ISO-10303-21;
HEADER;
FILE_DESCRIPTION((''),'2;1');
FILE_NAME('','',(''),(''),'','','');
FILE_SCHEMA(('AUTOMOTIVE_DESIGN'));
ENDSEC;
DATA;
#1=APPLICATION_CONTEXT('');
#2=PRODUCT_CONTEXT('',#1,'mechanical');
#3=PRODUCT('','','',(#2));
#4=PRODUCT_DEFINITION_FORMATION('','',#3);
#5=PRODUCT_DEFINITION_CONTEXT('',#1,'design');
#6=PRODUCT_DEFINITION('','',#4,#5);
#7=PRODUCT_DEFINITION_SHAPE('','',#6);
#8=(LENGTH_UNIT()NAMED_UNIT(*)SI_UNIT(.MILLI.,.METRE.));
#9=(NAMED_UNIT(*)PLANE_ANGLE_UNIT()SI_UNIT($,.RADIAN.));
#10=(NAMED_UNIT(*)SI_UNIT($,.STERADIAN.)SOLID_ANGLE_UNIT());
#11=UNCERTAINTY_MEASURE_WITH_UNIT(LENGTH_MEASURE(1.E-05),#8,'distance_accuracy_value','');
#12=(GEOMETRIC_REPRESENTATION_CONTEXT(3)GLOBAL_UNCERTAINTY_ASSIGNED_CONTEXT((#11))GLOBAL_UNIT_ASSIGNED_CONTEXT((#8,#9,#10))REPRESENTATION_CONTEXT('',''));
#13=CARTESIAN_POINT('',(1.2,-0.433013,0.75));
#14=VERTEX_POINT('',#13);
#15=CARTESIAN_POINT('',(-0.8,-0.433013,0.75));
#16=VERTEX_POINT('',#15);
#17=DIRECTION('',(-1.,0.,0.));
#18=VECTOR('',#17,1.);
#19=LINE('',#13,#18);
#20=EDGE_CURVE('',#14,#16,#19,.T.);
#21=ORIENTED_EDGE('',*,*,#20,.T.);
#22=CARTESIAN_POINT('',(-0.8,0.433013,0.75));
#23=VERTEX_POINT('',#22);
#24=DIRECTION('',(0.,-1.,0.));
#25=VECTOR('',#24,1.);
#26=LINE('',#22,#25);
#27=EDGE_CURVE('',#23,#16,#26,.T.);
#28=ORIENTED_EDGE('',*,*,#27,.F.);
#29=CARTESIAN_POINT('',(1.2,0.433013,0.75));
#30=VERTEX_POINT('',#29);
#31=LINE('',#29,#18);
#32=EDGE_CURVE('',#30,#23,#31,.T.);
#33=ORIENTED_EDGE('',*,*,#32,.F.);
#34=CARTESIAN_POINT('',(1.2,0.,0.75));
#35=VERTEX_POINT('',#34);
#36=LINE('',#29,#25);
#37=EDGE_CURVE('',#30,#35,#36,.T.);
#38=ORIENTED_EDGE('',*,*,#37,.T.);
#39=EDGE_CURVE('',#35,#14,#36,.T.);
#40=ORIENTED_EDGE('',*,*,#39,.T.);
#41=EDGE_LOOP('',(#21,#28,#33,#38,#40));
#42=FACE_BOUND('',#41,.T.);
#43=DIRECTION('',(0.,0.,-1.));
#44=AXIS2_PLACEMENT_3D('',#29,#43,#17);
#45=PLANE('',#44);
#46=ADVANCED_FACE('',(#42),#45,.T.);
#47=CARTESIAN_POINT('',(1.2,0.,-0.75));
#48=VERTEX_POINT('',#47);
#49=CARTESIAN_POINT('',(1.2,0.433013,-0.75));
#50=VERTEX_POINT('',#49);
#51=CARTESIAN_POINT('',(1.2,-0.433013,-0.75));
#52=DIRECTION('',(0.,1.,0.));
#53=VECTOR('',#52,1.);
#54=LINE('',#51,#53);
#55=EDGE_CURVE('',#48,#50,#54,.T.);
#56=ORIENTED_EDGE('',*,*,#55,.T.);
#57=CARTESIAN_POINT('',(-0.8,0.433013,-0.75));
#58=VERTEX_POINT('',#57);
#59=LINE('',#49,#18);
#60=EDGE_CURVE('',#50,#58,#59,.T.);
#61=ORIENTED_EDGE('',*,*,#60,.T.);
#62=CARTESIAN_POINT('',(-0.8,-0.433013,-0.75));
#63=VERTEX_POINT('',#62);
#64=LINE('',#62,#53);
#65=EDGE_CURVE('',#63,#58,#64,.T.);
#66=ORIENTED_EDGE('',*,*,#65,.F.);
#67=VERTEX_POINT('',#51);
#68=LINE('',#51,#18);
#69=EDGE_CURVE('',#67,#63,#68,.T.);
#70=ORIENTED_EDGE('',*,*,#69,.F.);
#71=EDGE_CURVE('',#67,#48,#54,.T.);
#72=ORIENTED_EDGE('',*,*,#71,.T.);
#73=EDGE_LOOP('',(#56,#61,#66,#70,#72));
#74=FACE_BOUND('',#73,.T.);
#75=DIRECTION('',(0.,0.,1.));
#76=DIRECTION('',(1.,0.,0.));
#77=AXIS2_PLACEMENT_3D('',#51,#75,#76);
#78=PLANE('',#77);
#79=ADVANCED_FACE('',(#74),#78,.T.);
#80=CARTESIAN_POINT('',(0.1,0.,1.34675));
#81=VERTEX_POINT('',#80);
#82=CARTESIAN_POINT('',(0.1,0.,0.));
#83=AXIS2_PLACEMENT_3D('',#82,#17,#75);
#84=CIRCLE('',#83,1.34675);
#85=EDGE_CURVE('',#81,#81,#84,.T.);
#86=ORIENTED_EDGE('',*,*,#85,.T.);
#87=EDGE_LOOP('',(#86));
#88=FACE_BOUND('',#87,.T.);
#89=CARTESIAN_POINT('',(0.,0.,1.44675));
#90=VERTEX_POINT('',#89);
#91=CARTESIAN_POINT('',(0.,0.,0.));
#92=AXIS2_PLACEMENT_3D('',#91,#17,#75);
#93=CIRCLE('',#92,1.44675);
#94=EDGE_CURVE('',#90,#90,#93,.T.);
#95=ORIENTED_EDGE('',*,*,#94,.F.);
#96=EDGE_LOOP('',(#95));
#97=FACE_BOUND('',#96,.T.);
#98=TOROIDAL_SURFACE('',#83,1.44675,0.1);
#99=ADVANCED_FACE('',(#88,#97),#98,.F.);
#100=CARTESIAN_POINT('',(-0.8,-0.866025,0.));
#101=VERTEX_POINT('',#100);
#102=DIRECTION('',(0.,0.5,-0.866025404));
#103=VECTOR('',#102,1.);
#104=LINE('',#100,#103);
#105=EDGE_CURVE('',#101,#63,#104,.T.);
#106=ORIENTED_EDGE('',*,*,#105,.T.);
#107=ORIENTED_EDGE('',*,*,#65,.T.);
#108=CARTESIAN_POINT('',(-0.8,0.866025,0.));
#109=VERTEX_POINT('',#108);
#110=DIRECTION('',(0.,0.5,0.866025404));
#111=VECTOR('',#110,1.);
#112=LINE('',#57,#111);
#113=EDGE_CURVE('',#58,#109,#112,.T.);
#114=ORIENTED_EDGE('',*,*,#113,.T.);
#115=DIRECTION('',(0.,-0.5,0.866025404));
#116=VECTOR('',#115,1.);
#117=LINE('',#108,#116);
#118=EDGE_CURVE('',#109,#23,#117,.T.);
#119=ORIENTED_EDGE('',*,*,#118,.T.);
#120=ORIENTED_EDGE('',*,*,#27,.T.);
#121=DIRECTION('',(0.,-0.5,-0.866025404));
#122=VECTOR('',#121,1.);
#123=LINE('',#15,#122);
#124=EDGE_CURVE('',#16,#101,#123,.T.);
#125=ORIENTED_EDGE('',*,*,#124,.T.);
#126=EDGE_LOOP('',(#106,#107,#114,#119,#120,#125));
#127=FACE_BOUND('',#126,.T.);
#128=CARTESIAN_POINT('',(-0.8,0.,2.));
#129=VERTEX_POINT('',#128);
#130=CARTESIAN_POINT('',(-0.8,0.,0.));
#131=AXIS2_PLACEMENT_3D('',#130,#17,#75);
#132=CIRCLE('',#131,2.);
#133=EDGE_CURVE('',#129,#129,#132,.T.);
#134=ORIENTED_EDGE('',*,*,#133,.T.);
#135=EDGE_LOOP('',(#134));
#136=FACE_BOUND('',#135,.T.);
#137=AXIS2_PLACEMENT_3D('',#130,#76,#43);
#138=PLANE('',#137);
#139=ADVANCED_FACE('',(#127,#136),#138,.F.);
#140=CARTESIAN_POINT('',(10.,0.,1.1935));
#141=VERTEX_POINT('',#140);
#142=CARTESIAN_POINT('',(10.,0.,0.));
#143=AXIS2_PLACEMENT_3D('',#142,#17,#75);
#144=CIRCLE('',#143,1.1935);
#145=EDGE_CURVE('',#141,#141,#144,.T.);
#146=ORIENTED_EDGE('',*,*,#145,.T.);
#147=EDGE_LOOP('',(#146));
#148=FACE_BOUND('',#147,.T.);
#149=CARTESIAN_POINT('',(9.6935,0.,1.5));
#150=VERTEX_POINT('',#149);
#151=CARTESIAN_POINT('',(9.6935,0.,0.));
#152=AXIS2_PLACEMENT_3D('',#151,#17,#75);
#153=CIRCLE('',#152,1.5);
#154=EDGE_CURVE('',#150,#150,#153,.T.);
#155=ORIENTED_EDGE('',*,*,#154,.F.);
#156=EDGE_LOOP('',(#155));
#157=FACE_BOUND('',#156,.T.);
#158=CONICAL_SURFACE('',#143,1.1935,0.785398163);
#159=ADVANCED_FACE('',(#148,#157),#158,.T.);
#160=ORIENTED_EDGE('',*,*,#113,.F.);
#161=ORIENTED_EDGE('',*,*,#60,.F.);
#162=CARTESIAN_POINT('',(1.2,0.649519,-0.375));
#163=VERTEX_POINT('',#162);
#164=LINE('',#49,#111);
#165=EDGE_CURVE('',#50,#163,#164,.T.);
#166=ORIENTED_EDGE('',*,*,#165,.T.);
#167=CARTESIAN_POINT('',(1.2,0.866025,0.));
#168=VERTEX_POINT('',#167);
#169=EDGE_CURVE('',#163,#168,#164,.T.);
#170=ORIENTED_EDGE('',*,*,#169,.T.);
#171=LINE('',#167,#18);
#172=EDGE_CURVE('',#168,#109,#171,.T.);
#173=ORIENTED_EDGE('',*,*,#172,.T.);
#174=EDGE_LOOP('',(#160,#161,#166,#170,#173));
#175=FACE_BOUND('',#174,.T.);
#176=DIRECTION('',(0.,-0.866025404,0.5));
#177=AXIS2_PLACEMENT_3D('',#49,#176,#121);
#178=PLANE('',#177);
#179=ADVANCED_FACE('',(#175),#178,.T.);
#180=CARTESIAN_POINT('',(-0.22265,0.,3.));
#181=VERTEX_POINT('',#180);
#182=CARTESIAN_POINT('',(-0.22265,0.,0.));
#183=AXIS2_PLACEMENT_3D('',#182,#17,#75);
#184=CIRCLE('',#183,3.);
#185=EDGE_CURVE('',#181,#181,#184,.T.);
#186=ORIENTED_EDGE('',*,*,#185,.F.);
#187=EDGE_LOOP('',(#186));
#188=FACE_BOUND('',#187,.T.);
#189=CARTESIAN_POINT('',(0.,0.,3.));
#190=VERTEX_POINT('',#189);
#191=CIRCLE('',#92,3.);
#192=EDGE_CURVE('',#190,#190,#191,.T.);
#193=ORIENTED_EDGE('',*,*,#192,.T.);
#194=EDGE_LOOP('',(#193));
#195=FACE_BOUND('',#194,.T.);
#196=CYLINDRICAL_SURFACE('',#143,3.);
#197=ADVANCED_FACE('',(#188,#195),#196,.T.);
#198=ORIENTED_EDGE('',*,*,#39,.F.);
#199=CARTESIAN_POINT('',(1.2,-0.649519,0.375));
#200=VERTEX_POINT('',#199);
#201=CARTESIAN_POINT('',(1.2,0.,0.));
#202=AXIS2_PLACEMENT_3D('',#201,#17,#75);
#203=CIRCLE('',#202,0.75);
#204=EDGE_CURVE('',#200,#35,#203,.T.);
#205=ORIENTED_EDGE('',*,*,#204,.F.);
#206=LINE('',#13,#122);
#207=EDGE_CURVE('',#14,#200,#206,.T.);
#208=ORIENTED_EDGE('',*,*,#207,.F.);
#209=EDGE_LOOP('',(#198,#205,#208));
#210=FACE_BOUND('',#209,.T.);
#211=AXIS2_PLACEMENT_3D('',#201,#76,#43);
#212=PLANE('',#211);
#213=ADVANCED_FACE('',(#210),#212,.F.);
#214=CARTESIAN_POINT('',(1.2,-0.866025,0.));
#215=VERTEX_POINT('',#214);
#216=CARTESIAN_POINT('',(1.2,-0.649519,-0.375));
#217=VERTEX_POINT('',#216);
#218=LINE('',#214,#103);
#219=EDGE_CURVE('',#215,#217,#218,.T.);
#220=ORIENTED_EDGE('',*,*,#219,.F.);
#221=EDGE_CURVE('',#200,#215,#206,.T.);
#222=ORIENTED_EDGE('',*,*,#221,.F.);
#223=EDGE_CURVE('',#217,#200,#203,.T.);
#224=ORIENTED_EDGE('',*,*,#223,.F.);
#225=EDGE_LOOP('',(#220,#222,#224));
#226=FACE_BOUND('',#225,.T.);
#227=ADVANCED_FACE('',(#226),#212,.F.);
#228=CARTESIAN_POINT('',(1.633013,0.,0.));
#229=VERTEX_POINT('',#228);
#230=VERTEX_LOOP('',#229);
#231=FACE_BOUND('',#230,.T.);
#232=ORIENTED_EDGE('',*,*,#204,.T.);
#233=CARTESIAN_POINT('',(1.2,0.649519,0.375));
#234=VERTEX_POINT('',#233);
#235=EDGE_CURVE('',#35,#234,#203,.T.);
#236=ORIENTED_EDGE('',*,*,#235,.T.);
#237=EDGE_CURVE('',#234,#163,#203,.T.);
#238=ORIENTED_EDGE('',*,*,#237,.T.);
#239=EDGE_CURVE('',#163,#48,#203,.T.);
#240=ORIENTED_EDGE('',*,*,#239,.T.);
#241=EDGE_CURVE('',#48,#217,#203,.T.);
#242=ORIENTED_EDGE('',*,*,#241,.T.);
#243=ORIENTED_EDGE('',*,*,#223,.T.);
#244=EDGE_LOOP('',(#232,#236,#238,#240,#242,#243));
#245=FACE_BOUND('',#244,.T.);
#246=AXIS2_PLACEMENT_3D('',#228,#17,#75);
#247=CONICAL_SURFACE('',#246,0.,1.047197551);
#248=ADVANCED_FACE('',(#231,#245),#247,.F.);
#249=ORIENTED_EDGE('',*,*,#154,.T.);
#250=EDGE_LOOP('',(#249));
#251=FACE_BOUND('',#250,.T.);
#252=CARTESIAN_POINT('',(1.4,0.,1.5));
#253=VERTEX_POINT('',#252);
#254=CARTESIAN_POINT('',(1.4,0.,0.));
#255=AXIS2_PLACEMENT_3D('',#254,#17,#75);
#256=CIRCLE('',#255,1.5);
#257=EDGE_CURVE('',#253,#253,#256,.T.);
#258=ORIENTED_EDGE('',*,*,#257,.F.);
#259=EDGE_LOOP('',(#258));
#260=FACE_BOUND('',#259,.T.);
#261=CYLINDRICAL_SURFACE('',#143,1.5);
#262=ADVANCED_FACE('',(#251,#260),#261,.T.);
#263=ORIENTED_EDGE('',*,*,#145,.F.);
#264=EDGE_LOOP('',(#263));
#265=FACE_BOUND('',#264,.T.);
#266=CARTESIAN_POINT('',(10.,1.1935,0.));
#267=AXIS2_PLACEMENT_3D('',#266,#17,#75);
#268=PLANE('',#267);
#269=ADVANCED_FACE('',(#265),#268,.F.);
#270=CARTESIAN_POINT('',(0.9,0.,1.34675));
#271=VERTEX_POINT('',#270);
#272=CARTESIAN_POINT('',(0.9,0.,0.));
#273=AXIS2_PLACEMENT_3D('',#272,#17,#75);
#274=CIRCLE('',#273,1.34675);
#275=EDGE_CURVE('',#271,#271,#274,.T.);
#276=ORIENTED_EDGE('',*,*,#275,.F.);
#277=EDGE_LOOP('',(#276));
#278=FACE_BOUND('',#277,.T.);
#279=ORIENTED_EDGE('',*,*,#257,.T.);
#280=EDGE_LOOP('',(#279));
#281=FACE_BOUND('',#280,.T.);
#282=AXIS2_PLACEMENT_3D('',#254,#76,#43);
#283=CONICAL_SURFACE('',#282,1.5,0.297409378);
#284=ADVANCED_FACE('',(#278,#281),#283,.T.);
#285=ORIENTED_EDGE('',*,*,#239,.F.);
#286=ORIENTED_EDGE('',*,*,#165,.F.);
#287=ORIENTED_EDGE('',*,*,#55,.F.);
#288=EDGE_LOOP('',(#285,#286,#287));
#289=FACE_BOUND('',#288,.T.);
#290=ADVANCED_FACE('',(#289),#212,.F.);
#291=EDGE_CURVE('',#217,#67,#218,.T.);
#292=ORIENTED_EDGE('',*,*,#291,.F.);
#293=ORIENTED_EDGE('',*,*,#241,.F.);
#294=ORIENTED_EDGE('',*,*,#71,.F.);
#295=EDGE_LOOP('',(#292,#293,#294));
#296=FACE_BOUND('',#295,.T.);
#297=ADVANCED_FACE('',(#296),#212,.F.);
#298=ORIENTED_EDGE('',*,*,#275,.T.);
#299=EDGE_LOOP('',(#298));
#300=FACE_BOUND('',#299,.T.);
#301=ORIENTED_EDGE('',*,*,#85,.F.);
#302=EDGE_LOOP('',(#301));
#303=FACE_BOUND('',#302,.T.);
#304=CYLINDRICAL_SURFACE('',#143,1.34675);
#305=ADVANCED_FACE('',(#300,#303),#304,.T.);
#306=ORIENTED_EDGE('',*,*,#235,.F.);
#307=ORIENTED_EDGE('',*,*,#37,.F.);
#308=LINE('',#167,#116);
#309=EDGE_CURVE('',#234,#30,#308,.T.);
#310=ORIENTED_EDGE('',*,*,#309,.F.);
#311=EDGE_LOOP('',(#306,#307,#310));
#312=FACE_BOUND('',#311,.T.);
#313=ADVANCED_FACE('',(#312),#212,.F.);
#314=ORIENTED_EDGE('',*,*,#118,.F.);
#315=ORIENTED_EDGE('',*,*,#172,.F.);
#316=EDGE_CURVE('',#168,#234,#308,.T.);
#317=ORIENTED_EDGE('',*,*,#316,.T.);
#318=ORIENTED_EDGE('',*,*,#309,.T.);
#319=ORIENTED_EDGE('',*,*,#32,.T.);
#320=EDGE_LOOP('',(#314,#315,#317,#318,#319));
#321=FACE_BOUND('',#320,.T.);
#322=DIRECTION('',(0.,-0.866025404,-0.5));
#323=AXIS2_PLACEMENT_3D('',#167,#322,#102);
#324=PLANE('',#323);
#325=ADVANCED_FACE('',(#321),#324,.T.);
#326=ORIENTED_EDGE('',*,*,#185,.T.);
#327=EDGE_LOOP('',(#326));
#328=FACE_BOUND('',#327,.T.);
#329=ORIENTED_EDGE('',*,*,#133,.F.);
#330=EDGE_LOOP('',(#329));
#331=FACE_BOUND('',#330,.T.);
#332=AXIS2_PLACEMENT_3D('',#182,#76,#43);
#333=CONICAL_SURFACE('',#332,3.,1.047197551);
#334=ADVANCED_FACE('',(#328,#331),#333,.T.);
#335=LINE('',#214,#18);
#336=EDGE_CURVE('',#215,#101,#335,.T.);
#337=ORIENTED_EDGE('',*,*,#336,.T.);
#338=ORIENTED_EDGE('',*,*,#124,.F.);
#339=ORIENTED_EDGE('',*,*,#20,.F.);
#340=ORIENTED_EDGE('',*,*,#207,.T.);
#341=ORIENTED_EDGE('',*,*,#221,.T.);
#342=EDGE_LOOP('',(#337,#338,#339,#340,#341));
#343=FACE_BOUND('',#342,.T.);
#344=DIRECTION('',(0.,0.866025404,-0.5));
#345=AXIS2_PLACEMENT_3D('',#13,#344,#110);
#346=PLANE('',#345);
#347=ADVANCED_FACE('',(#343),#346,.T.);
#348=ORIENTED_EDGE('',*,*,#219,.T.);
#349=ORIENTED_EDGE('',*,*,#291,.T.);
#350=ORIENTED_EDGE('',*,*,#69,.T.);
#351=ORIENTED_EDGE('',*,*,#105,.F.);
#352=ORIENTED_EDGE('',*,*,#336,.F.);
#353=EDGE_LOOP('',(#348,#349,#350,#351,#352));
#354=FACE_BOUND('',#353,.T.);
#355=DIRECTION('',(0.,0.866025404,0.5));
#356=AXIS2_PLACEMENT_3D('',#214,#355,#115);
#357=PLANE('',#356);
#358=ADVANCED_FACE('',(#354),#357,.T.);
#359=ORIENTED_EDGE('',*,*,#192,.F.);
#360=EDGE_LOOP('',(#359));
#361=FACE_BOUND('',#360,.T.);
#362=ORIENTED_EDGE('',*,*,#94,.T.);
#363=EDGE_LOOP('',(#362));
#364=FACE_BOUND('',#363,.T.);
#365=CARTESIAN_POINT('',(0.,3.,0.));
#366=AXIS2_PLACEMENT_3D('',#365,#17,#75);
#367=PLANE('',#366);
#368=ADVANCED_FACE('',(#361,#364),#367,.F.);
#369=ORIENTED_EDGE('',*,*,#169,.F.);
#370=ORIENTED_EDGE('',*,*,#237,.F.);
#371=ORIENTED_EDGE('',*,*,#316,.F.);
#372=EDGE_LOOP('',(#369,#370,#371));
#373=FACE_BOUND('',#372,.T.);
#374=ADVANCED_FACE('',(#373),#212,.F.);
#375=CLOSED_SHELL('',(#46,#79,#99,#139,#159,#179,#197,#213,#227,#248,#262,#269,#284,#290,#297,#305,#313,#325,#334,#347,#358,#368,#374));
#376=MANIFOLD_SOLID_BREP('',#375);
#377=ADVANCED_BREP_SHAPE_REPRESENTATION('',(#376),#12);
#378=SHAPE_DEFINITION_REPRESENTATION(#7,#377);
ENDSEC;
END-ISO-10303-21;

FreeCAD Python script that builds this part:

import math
import FreeCAD as App
import Part
import Sketcher

V = App.Vector
Q = App.Units.Quantity

doc = App.newDocument("Part")
params = doc.addObject("Spreadsheet::Sheet", "Params")
for row, (alias, value) in enumerate([
    ("sketch1_radius", "0.1 mm"),
    ("sketch1_height", "2 mm"),
    ("sketch1_width", "10.8 mm"),
    ("sketch1_width2", "0.8 mm"),
    ("revolution_angle", "360 deg"),
    ("sketch2_width", "2 mm"),
    ("sketch2_height", "0.75 mm"),
    ("groove_angle", "360 deg"),
    ("pocket1_length", "2 mm"),
], start=1):
    params.set(f"A{row}", alias)
    params.set(f"B{row}", "=" + value)
    params.setAlias(f"B{row}", alias)

body = doc.addObject("PartDesign::Body", "Body")

# Sketch on XY plane
sketch1 = body.newObject("Sketcher::SketchObject", "Sketch")
sketch1.AttachmentSupport = (doc.getObject("XY_Plane"), [""])
sketch1.MapMode = "FlatFace"
sketch1.addGeometry(Part.LineSegment(V(-0.8, 2, 0), V(-0.8, 0, 0)), False)
sketch1.addGeometry(Part.LineSegment(V(-0.8, 0, 0), V(10, 0, 0)), False)
sketch1.addGeometry(Part.LineSegment(V(10, 0, 0), V(10, 1.19, 0)), False)
sketch1.addGeometry(Part.LineSegment(V(10, 1.19, 0), V(9.69, 1.5, 0)), False)
sketch1.addGeometry(Part.LineSegment(V(9.69, 1.5, 0), V(1.4, 1.5, 0)), False)
sketch1.addGeometry(Part.LineSegment(V(1.4, 1.5, 0), V(0.9, 1.35, 0)), False)
sketch1.addGeometry(Part.LineSegment(V(0.9, 1.35, 0), V(0.1, 1.35, 0)), False)
sketch1.addGeometry(Part.ArcOfCircle(Part.Circle(V(0.1, 1.45, 0), V(0, 0, 1), 0.1), math.radians(180), math.radians(270)), False)
sketch1.addGeometry(Part.LineSegment(V(0, 1.45, 0), V(0, 3, 0)), False)
sketch1.addGeometry(Part.LineSegment(V(0, 3, 0), V(-0.22, 3, 0)), False)
sketch1.addGeometry(Part.LineSegment(V(-0.22, 3, 0), V(-0.8, 2, 0)), False)
sketch1.addConstraint(Sketcher.Constraint("Coincident", 0, 2, 1, 1))
sketch1.addConstraint(Sketcher.Constraint("Coincident", 1, 2, 2, 1))
sketch1.addConstraint(Sketcher.Constraint("Coincident", 2, 2, 3, 1))
sketch1.addConstraint(Sketcher.Constraint("Coincident", 3, 2, 4, 1))
sketch1.addConstraint(Sketcher.Constraint("Coincident", 4, 2, 5, 1))
sketch1.addConstraint(Sketcher.Constraint("Coincident", 5, 2, 6, 1))
sketch1.addConstraint(Sketcher.Constraint("Tangent", 6, 2, 7, 2))
sketch1.addConstraint(Sketcher.Constraint("Tangent", 7, 1, 8, 1))
sketch1.addConstraint(Sketcher.Constraint("Coincident", 8, 2, 9, 1))
sketch1.addConstraint(Sketcher.Constraint("Coincident", 9, 2, 10, 1))
sketch1.addConstraint(Sketcher.Constraint("Coincident", 10, 2, 0, 1))
sketch1.addConstraint(Sketcher.Constraint("Vertical", 0))
sketch1.addConstraint(Sketcher.Constraint("Horizontal", 1))
sketch1.addConstraint(Sketcher.Constraint("Vertical", 2))
sketch1.addConstraint(Sketcher.Constraint("Horizontal", 4))
sketch1.addConstraint(Sketcher.Constraint("Horizontal", 6))
sketch1.addConstraint(Sketcher.Constraint("Vertical", 8))
sketch1.addConstraint(Sketcher.Constraint("Horizontal", 9))
sketch1.addConstraint(Sketcher.Constraint("PointOnObject", 0, 2, -1))
sketch1.addConstraint(Sketcher.Constraint("PointOnObject", 7, 1, -2))
sketch1.addConstraint(Sketcher.Constraint("Radius", 7, Q("0.1 mm")))
sketch1.addConstraint(Sketcher.Constraint("DistanceY", 0, 2, 0, 1, Q("2 mm")))
sketch1.addConstraint(Sketcher.Constraint("Angle", 3, Q("135 deg")))
sketch1.addConstraint(Sketcher.Constraint("Angle", 10, Q("-120 deg")))
sketch1.addConstraint(Sketcher.Constraint("DistanceX", 1, 1, 1, 2, Q("10.8 mm")))
sketch1.addConstraint(Sketcher.Constraint("DistanceX", 6, 2, 6, 1, Q("0.8 mm")))
sketch1.addConstraint(Sketcher.Constraint("DistanceX", -1, 1, 1, 2, Q("10 mm")))
sketch1.addConstraint(Sketcher.Constraint("DistanceY", -1, 1, 8, 2, Q("3 mm")))
sketch1.addConstraint(Sketcher.Constraint("DistanceY", -1, 1, 3, 2, Q("1.5 mm")))
sketch1.addConstraint(Sketcher.Constraint("DistanceX", -1, 1, 4, 2, Q("1.4 mm")))
sketch1.addConstraint(Sketcher.Constraint("DistanceX", 4, 2, 4, 1, Q("8.2935 mm")))
sketch1.addConstraint(Sketcher.Constraint("DistanceY", 8, 1, 8, 2, Q("1.55325 mm")))
sketch1.setExpression("Constraints[20]", "Params.sketch1_radius")
sketch1.setExpression("Constraints[21]", "Params.sketch1_height")
sketch1.setExpression("Constraints[24]", "Params.sketch1_width")
sketch1.setExpression("Constraints[25]", "Params.sketch1_width2")
revolution = body.newObject("PartDesign::Revolution", "Revolution")
revolution.Profile = sketch1
revolution.ReferenceAxis = (sketch1, ["H_Axis"])
revolution.setExpression("Angle", "Params.revolution_angle")

# Sketch on XY plane
sketch2 = body.newObject("Sketcher::SketchObject", "Sketch001")
sketch2.AttachmentSupport = (doc.getObject("XY_Plane"), [""])
sketch2.MapMode = "FlatFace"
sketch2.addGeometry(Part.LineSegment(V(-0.8, 0.8, 0), V(-0.8, 0, 0)), False)
sketch2.addGeometry(Part.LineSegment(V(-0.8, 0, 0), V(1.6, 0, 0)), False)
sketch2.addGeometry(Part.LineSegment(V(1.6, 0, 0), V(1.2, 0.8, 0)), False)
sketch2.addGeometry(Part.LineSegment(V(1.2, 0.8, 0), V(-0.8, 0.8, 0)), False)
sketch2.addConstraint(Sketcher.Constraint("Coincident", 0, 2, 1, 1))
sketch2.addConstraint(Sketcher.Constraint("Coincident", 1, 2, 2, 1))
sketch2.addConstraint(Sketcher.Constraint("Coincident", 2, 2, 3, 1))
sketch2.addConstraint(Sketcher.Constraint("Coincident", 3, 2, 0, 1))
sketch2.addConstraint(Sketcher.Constraint("Vertical", 0))
sketch2.addConstraint(Sketcher.Constraint("Horizontal", 1))
sketch2.addConstraint(Sketcher.Constraint("Horizontal", 3))
sketch2.addConstraint(Sketcher.Constraint("PointOnObject", 0, 2, -1))
sketch2.addConstraint(Sketcher.Constraint("DistanceX", 3, 2, 3, 1, Q("2 mm")))
sketch2.addConstraint(Sketcher.Constraint("Angle", 2, Q("120 deg")))
sketch2.addConstraint(Sketcher.Constraint("DistanceY", 0, 2, 0, 1, Q("0.75 mm")))
sketch2.addConstraint(Sketcher.Constraint("DistanceX", 0, 2, -1, 1, Q("0.8 mm")))
sketch2.setExpression("Constraints[8]", "Params.sketch2_width")
sketch2.setExpression("Constraints[10]", "Params.sketch2_height")
groove = body.newObject("PartDesign::Groove", "Groove")
groove.Profile = sketch2
groove.ReferenceAxis = (sketch2, ["H_Axis"])
groove.setExpression("Angle", "Params.groove_angle")

# Sketch on YZ plane
sketch3 = body.newObject("Sketcher::SketchObject", "Sketch002")
sketch3.AttachmentSupport = (doc.getObject("YZ_Plane"), [""])
sketch3.MapMode = "FlatFace"
sketch3.AttachmentOffset = App.Placement(V(0, 0, -0.8), App.Rotation())
sketch3.addGeometry(Part.LineSegment(V(-0.4, 0.8, 0), V(-0.9, 0, 0)), False)
sketch3.addGeometry(Part.LineSegment(V(-0.9, 0, 0), V(-0.4, -0.8, 0)), False)
sketch3.addGeometry(Part.LineSegment(V(-0.4, -0.8, 0), V(0.4, -0.8, 0)), False)
sketch3.addGeometry(Part.LineSegment(V(0.4, -0.8, 0), V(0.9, 0, 0)), False)
sketch3.addGeometry(Part.LineSegment(V(0.9, 0, 0), V(0.4, 0.8, 0)), False)
sketch3.addGeometry(Part.LineSegment(V(0.4, 0.8, 0), V(-0.4, 0.8, 0)), False)
sketch3.addConstraint(Sketcher.Constraint("Coincident", 0, 2, 1, 1))
sketch3.addConstraint(Sketcher.Constraint("Coincident", 1, 2, 2, 1))
sketch3.addConstraint(Sketcher.Constraint("Coincident", 2, 2, 3, 1))
sketch3.addConstraint(Sketcher.Constraint("Coincident", 3, 2, 4, 1))
sketch3.addConstraint(Sketcher.Constraint("Coincident", 4, 2, 5, 1))
sketch3.addConstraint(Sketcher.Constraint("Coincident", 5, 2, 0, 1))
sketch3.addConstraint(Sketcher.Constraint("Horizontal", 2))
sketch3.addConstraint(Sketcher.Constraint("Horizontal", 5))
sketch3.addConstraint(Sketcher.Constraint("Symmetric", 0, 2, 3, 2, -1, 1))
sketch3.addConstraint(Sketcher.Constraint("Symmetric", 1, 2, 4, 2, -1, 1))
sketch3.addConstraint(Sketcher.Constraint("PointOnObject", 0, 2, -1))
sketch3.addConstraint(Sketcher.Constraint("Parallel", 0, 3))
sketch3.addConstraint(Sketcher.Constraint("Vertical", 2, 2, 4, 2))
sketch3.addConstraint(Sketcher.Constraint("Angle", 0, Q("-120 deg")))
sketch3.addConstraint(Sketcher.Constraint("DistanceY", 2, 2, 4, 2, Q("1.5 mm")))
sketch3.addConstraint(Sketcher.Constraint("DistanceX", 2, 1, 2, 2, Q("0.866025 mm")))
pocket1 = body.newObject("PartDesign::Pocket", "Pocket")
pocket1.Profile = sketch3
pocket1.setExpression("Length", "Params.pocket1_length")
pocket1.Reversed = True

doc.recompute()
